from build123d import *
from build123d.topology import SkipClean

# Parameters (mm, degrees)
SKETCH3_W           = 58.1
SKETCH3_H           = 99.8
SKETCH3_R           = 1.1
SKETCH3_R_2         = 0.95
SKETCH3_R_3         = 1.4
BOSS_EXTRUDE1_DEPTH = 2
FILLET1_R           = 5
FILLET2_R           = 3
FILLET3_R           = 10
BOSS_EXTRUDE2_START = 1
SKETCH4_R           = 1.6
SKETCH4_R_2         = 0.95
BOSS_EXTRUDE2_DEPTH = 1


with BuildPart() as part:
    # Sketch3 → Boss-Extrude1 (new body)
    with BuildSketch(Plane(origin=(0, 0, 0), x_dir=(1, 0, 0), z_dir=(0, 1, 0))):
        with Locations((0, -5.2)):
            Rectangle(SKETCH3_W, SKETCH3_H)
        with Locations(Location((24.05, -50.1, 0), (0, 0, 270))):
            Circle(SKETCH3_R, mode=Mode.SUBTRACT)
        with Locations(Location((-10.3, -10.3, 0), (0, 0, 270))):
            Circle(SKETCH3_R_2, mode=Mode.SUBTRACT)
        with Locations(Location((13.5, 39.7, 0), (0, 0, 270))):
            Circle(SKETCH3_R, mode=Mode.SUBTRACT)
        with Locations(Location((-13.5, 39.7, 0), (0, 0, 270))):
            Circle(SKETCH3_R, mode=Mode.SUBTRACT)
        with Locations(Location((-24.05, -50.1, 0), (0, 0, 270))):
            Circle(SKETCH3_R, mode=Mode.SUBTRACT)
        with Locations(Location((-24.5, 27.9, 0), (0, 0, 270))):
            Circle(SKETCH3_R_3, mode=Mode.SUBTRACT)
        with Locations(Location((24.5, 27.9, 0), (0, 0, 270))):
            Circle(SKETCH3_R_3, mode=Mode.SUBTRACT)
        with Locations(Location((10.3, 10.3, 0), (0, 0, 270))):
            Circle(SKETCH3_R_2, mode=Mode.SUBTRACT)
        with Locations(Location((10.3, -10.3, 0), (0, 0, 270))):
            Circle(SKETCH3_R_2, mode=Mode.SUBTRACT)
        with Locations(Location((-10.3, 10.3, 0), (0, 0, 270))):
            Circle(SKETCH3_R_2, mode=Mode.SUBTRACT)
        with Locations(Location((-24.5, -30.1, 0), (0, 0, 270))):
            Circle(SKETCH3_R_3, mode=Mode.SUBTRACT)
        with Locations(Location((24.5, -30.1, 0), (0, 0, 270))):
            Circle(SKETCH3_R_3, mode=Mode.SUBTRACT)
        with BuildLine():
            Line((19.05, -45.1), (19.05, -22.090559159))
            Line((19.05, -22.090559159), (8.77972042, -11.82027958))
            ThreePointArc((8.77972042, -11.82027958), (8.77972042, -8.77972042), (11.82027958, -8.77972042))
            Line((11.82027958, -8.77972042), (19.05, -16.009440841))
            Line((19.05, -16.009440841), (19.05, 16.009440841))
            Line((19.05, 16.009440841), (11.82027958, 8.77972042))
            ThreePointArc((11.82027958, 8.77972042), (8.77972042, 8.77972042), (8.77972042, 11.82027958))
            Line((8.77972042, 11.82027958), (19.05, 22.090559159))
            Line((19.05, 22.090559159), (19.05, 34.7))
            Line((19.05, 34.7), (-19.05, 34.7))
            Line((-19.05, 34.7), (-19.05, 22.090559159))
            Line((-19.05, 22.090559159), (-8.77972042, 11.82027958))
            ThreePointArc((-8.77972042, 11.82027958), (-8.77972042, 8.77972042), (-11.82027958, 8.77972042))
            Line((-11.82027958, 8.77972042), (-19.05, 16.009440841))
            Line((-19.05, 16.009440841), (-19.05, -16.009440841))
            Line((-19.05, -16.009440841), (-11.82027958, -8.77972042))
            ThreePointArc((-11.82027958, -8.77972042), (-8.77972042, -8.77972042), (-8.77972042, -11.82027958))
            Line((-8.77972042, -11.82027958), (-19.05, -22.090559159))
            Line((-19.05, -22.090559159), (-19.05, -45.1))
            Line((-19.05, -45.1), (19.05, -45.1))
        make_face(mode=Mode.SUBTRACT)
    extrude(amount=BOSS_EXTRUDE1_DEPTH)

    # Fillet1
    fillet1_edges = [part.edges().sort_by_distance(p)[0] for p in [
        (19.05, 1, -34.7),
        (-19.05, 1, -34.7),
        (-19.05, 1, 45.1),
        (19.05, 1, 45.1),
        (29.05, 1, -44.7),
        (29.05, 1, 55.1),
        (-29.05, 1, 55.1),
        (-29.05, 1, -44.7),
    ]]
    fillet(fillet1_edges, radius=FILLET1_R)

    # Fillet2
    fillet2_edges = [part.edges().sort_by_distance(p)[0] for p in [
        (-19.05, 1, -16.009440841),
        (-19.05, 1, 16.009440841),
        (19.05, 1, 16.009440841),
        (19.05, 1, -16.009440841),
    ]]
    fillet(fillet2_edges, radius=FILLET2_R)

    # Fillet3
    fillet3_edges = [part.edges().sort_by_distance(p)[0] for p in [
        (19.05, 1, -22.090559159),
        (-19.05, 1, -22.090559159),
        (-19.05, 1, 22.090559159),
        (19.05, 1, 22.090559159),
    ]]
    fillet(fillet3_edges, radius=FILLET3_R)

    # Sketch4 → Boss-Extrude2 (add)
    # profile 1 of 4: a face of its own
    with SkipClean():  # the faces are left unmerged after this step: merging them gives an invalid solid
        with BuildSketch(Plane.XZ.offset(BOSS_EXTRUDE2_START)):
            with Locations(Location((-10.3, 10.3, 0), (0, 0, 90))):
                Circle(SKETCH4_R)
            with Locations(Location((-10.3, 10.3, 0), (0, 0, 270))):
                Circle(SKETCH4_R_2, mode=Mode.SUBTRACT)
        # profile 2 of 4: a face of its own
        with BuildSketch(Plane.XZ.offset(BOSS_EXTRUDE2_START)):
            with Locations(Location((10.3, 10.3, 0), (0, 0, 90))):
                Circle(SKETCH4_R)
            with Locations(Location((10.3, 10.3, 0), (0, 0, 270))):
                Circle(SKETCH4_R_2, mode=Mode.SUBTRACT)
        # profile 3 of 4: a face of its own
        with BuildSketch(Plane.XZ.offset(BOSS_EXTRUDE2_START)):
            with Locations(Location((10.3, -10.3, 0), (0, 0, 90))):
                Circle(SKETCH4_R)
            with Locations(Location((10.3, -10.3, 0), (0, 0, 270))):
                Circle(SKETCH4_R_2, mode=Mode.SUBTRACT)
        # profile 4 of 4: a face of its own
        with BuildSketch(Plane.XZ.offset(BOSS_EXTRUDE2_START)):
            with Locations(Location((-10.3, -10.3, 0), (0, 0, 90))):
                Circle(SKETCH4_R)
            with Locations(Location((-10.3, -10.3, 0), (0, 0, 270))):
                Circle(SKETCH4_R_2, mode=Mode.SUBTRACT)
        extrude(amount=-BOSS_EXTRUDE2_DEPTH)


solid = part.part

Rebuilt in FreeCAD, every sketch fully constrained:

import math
import FreeCAD as App
import Part
import Sketcher
Q = App.Units.Quantity


def edges_at(feature, points):
    """Names of the edges that pass closest to the given points."""
    edges = feature.Shape.Edges
    near = lambda p: min(range(len(edges)), key=lambda i: edges[i].distToShape(Part.Vertex(*p))[0])
    return sorted({f"Edge{near(p) + 1}" for p in points})


def add_polygon(sketch, points):
    """Adds a closed chain of lines whose ends are joined by coincident constraints."""
    first, n = sketch.GeometryCount, len(points)
    for a, b in zip(points, points[1:] + points[:1]):
        sketch.addGeometry(Part.LineSegment(App.Vector(*a, 0), App.Vector(*b, 0)), False)
    for i in range(n):
        sketch.addConstraint(Sketcher.Constraint("Coincident", first + i, 2, first + (i + 1) % n, 1))

doc = App.newDocument("Part")
body = doc.addObject("PartDesign::Body", "Body")

# Sketch on XZ plane
sketch1 = body.newObject("Sketcher::SketchObject", "Sketch")
sketch1.AttachmentSupport = (doc.getObject("XZ_Plane"), [""])
sketch1.MapMode = "FlatFace"
add_polygon(sketch1, [(-29.1, -44.7), (-29.1, 55.1), (29.1, 55.1), (29.1, -44.7)])  # lines 0-3
sketch1.addGeometry(Part.Circle(App.Vector(-24.1, 50.1, 0), App.Vector(0, 0, 1), 1.1), False)  # 4
sketch1.addGeometry(Part.Circle(App.Vector(-24.5, 30.1, 0), App.Vector(0, 0, 1), 1.4), False)  # 5
sketch1.addGeometry(Part.Circle(App.Vector(-10.3, 10.3, 0), App.Vector(0, 0, 1), 0.9), False)  # 6
sketch1.addGeometry(Part.Circle(App.Vector(24.1, 50.1, 0), App.Vector(0, 0, 1), 1.1), False)  # 7
sketch1.addGeometry(Part.Circle(App.Vector(24.5, 30.1, 0), App.Vector(0, 0, 1), 1.4), False)  # 8
sketch1.addGeometry(Part.Circle(App.Vector(10.3, 10.3, 0), App.Vector(0, 0, 1), 0.9), False)  # 9
sketch1.addGeometry(Part.LineSegment(App.Vector(19.1, 22.1, 0), App.Vector(19.1, 45.1, 0)), False)  # 10
sketch1.addGeometry(Part.LineSegment(App.Vector(19.1, 45.1, 0), App.Vector(-19.1, 45.1, 0)), False)  # 11
sketch1.addGeometry(Part.LineSegment(App.Vector(-19.1, 45.1, 0), App.Vector(-19.1, 22.1, 0)), False)  # 12
sketch1.addGeometry(Part.LineSegment(App.Vector(-19.1, 22.1, 0), App.Vector(-8.8, 11.8, 0)), False)  # 13
sketch1.addGeometry(Part.ArcOfCircle(Part.Circle(App.Vector(-10.3, 10.3, 0), App.Vector(0, 0, 1), 2.2), math.radians(-135), math.radians(45)), False)  # 14
sketch1.addGeometry(Part.LineSegment(App.Vector(-11.8, 8.8, 0), App.Vector(-19.1, 16, 0)), False)  # 15
sketch1.addGeometry(Part.LineSegment(App.Vector(-19.1, 16, 0), App.Vector(-19.1, -16, 0)), False)  # 16
sketch1.addGeometry(Part.LineSegment(App.Vector(-19.1, -16, 0), App.Vector(-11.8, -8.8, 0)), False)  # 17
sketch1.addGeometry(Part.ArcOfCircle(Part.Circle(App.Vector(-10.3, -10.3, 0), App.Vector(0, 0, 1), 2.2), math.radians(-45), math.radians(135)), False)  # 18
sketch1.addGeometry(Part.LineSegment(App.Vector(-8.8, -11.8, 0), App.Vector(-19.1, -22.1, 0)), False)  # 19
sketch1.addGeometry(Part.LineSegment(App.Vector(-19.1, -22.1, 0), App.Vector(-19.1, -34.7, 0)), False)  # 20
sketch1.addGeometry(Part.LineSegment(App.Vector(-19.1, -34.7, 0), App.Vector(19.1, -34.7, 0)), False)  # 21
sketch1.addGeometry(Part.LineSegment(App.Vector(19.1, -34.7, 0), App.Vector(19.1, -22.1, 0)), False)  # 22
sketch1.addGeometry(Part.LineSegment(App.Vector(19.1, -22.1, 0), App.Vector(8.8, -11.8, 0)), False)  # 23
sketch1.addGeometry(Part.ArcOfCircle(Part.Circle(App.Vector(10.3, -10.3, 0), App.Vector(0, 0, 1), 2.2), math.radians(45), math.radians(225)), False)  # 24
sketch1.addGeometry(Part.LineSegment(App.Vector(11.8, -8.8, 0), App.Vector(19.1, -16, 0)), False)  # 25
sketch1.addGeometry(Part.LineSegment(App.Vector(19.1, -16, 0), App.Vector(19.1, 16, 0)), False)  # 26
sketch1.addGeometry(Part.LineSegment(App.Vector(19.1, 16, 0), App.Vector(11.8, 8.8, 0)), False)  # 27
sketch1.addGeometry(Part.ArcOfCircle(Part.Circle(App.Vector(10.3, 10.3, 0), App.Vector(0, 0, 1), 2.2), math.radians(135), math.radians(315)), False)  # 28
sketch1.addGeometry(Part.LineSegment(App.Vector(8.8, 11.8, 0), App.Vector(19.1, 22.1, 0)), False)  # 29
sketch1.addGeometry(Part.Circle(App.Vector(-10.3, -10.3, 0), App.Vector(0, 0, 1), 0.9), False)  # 30
sketch1.addGeometry(Part.Circle(App.Vector(-24.5, -27.9, 0), App.Vector(0, 0, 1), 1.4), False)  # 31
sketch1.addGeometry(Part.Circle(App.Vector(-13.5, -39.7, 0), App.Vector(0, 0, 1), 1.1), False)  # 32
sketch1.addGeometry(Part.Circle(App.Vector(10.3, -10.3, 0), App.Vector(0, 0, 1), 0.9), False)  # 33
sketch1.addGeometry(Part.Circle(App.Vector(24.5, -27.9, 0), App.Vector(0, 0, 1), 1.4), False)  # 34
sketch1.addGeometry(Part.Circle(App.Vector(13.5, -39.7, 0), App.Vector(0, 0, 1), 1.1), False)  # 35
sketch1.addConstraint([
    Sketcher.Constraint("Coincident", 10, 2, 11, 1),
    Sketcher.Constraint("Coincident", 11, 2, 12, 1),
    Sketcher.Constraint("Coincident", 12, 2, 13, 1),
    Sketcher.Constraint("Tangent", 13, 2, 14, 2),
    Sketcher.Constraint("Tangent", 14, 1, 15, 1),
    Sketcher.Constraint("Coincident", 15, 2, 16, 1),
    Sketcher.Constraint("Coincident", 16, 2, 17, 1),
    Sketcher.Constraint("Tangent", 17, 2, 18, 2),
    Sketcher.Constraint("Tangent", 18, 1, 19, 1),
    Sketcher.Constraint("Coincident", 19, 2, 20, 1),
    Sketcher.Constraint("Coincident", 20, 2, 21, 1),
    Sketcher.Constraint("Coincident", 21, 2, 22, 1),
    Sketcher.Constraint("Coincident", 22, 2, 23, 1),
    Sketcher.Constraint("Tangent", 23, 2, 24, 2),
    Sketcher.Constraint("Tangent", 24, 1, 25, 1),
    Sketcher.Constraint("Coincident", 25, 2, 26, 1),
    Sketcher.Constraint("Coincident", 26, 2, 27, 1),
    Sketcher.Constraint("Tangent", 27, 2, 28, 2),
    Sketcher.Constraint("Tangent", 28, 1, 29, 1),
    Sketcher.Constraint("Coincident", 29, 2, 10, 1),
    Sketcher.Constraint("Vertical", 0),
    Sketcher.Constraint("Horizontal", 1),
    Sketcher.Constraint("Vertical", 2),
    Sketcher.Constraint("Horizontal", 3),
    Sketcher.Constraint("Vertical", 10),
    Sketcher.Constraint("Horizontal", 11),
    Sketcher.Constraint("Vertical", 12),
    Sketcher.Constraint("Vertical", 16),
    Sketcher.Constraint("Vertical", 20),
    Sketcher.Constraint("Horizontal", 21),
    Sketcher.Constraint("Vertical", 22),
    Sketcher.Constraint("Vertical", 26),
    Sketcher.Constraint("Coincident", 14, 3, 6, 3),
    Sketcher.Constraint("Coincident", 28, 3, 9, 3),
    Sketcher.Constraint("Coincident", 30, 3, 18, 3),
    Sketcher.Constraint("Coincident", 33, 3, 24, 3),
    Sketcher.Constraint("Equal", 4, 7),
    Sketcher.Constraint("Equal", 5, 8),
    Sketcher.Constraint("Equal", 6, 9),
    Sketcher.Constraint("Equal", 14, 18),
    Sketcher.Constraint("Equal", 18, 24),
    Sketcher.Constraint("Equal", 24, 28),
    Sketcher.Constraint("Equal", 9, 30),
    Sketcher.Constraint("Equal", 8, 31),
    Sketcher.Constraint("Equal", 7, 32),
    Sketcher.Constraint("Equal", 30, 33),
    Sketcher.Constraint("Equal", 31, 34),
    Sketcher.Constraint("Equal", 32, 35),
    Sketcher.Constraint("Symmetric", 9, 3, 18, 3, -1, 1),
    Sketcher.Constraint("Symmetric", 6, 3, 24, 3, -1, 1),
    Sketcher.Constraint("Symmetric", 12, 2, 22, 2, -1, 1),
    Sketcher.Constraint("Symmetric", 15, 2, 25, 2, -1, 1),
    Sketcher.Constraint("Symmetric", 19, 2, 29, 2, -1, 1),
    Sketcher.Constraint("Symmetric", 4, 3, 7, 3, -2),
    Sketcher.Constraint("Symmetric", 5, 3, 8, 3, -2),
    Sketcher.Constraint("Symmetric", 6, 3, 9, 3, -2),
    Sketcher.Constraint("Symmetric", 31, 3, 34, 3, -2),
    Sketcher.Constraint("Symmetric", 32, 3, 35, 3, -2),
    Sketcher.Constraint("Symmetric", 19, 2, 22, 2, -2),
    Sketcher.Constraint("Parallel", 13, 15),
    Sketcher.Constraint("Perpendicular", 15, 17),
    Sketcher.Constraint("Parallel", 17, 19),
    Sketcher.Constraint("Perpendicular", 25, 27),
    Sketcher.Constraint("Vertical", 5, 3, 31, 3),
    Sketcher.Constraint("Vertical", 12, 2, 15, 2),
    Sketcher.Constraint("Diameter", 4, Q("2.2 mm")),
    Sketcher.Constraint("Diameter", 5, Q("2.8 mm")),
    Sketcher.Constraint("Diameter", 6, Q("1.9 mm")),
    Sketcher.Constraint("Radius", 14, Q("2.15 mm")),
    Sketcher.Constraint("DistanceX", 1, 1, 1, 2, Q("58.1 mm")),
    Sketcher.Constraint("DistanceX", 11, 2, 11, 1, Q("38.1 mm")),
    Sketcher.Constraint("DistanceY", 0, 1, 0, 2, Q("99.8 mm")),
    Sketcher.Constraint("DistanceY", 5, 3, 4, 3, Q("20 mm")),
    Sketcher.Constraint("DistanceX", 5, 3, 8, 3, Q("49 mm")),
    Sketcher.Constraint("DistanceX", 31, 3, 32, 3, Q("11 mm")),
    Sketcher.Constraint("DistanceY", 32, 3, 6, 3, Q("50 mm")),
    Sketcher.Constraint("DistanceX", 0, 2, 4, 3, Q("5 mm")),
    Sketcher.Constraint("DistanceY", 4, 3, 0, 2, Q("5 mm")),
    Sketcher.Constraint("DistanceX", 7, 3, 1, 2, Q("5 mm")),
    Sketcher.Constraint("DistanceY", 2, 2, 35, 3, Q("5 mm")),
    Sketcher.Constraint("DistanceY", 10, 2, 7, 3, Q("5 mm")),
    Sketcher.Constraint("DistanceY", 32, 3, 20, 2, Q("5 mm")),
    Sketcher.Constraint("DistanceY", -1, 1, 4, 3, Q("50.1 mm")),
    Sketcher.Constraint("DistanceX", 6, 3, -1, 1, Q("10.3 mm")),
    Sketcher.Constraint("DistanceY", 31, 3, -1, 1, Q("27.9 mm")),
])
pad1 = body.newObject("PartDesign::Pad", "Pad")
pad1.Profile = sketch1
pad1.Length = 2
pad1.Reversed = True
doc.recompute()

fillet = body.newObject("PartDesign::Fillet", "Fillet")
fillet.Base = (pad1, edges_at(pad1, [
    (19.05, 1, -34.7),
    (-19.05, 1, -34.7),
    (-19.05, 1, 45.1),
    (19.05, 1, 45.1),
    (29.05, 1, -44.7),
    (29.05, 1, 55.1),
    (-29.05, 1, 55.1),
    (-29.05, 1, -44.7),
]))
fillet.Radius = 5
doc.recompute()

fillet2 = body.newObject("PartDesign::Fillet", "Fillet001")
fillet2.Base = (fillet, edges_at(fillet, [
    (-19.05, 1, -16.009),
    (-19.05, 1, 16.009),
    (19.05, 1, 16.009),
    (19.05, 1, -16.009),
]))
fillet2.Radius = 3
doc.recompute()

fillet3 = body.newObject("PartDesign::Fillet", "Fillet002")
fillet3.Base = (fillet2, edges_at(fillet2, [
    (19.05, 1, -22.091),
    (-19.05, 1, -22.091),
    (-19.05, 1, 22.091),
    (19.05, 1, 22.091),
]))
fillet3.Radius = 10

# Sketch on XZ plane
sketch2 = body.newObject("Sketcher::SketchObject", "Sketch001")
sketch2.AttachmentSupport = (doc.getObject("XZ_Plane"), [""])
sketch2.MapMode = "FlatFace"
sketch2.AttachmentOffset = App.Placement(App.Vector(0, 0, 1), App.Rotation())
sketch2.addGeometry([
    Part.Circle(App.Vector(-10.3, 10.3, 0), App.Vector(0, 0, 1), 1.6),  # 0
    Part.Circle(App.Vector(-10.3, 10.3, 0), App.Vector(0, 0, 1), 0.9),  # 1
    Part.Circle(App.Vector(10.3, 10.3, 0), App.Vector(0, 0, 1), 1.6),  # 2
    Part.Circle(App.Vector(10.3, 10.3, 0), App.Vector(0, 0, 1), 0.9),  # 3
    Part.Circle(App.Vector(10.3, -10.3, 0), App.Vector(0, 0, 1), 1.6),  # 4
    Part.Circle(App.Vector(10.3, -10.3, 0), App.Vector(0, 0, 1), 0.9),  # 5
    Part.Circle(App.Vector(-10.3, -10.3, 0), App.Vector(0, 0, 1), 1.6),  # 6
    Part.Circle(App.Vector(-10.3, -10.3, 0), App.Vector(0, 0, 1), 0.9),  # 7
], False)
sketch2.addConstraint([
    Sketcher.Constraint("Coincident", 1, 3, 0, 3),
    Sketcher.Constraint("Coincident", 3, 3, 2, 3),
    Sketcher.Constraint("Coincident", 5, 3, 4, 3),
    Sketcher.Constraint("Coincident", 7, 3, 6, 3),
    Sketcher.Constraint("Equal", 0, 2),
    Sketcher.Constraint("Equal", 1, 3),
    Sketcher.Constraint("Equal", 2, 4),
    Sketcher.Constraint("Equal", 3, 5),
    Sketcher.Constraint("Equal", 4, 6),
    Sketcher.Constraint("Equal", 5, 7),
    Sketcher.Constraint("Symmetric", 0, 3, 4, 3, -1, 1),
    Sketcher.Constraint("Symmetric", 2, 3, 6, 3, -1, 1),
    Sketcher.Constraint("Symmetric", 0, 3, 2, 3, -2),
    Sketcher.Constraint("Diameter", 0, Q("3.2 mm")),
    Sketcher.Constraint("Diameter", 1, Q("1.9 mm")),
    Sketcher.Constraint("DistanceX", 0, 3, -1, 1, Q("10.3 mm")),
    Sketcher.Constraint("DistanceY", -1, 1, 0, 3, Q("10.3 mm")),
])
pad2 = body.newObject("PartDesign::Pad", "Pad001")
pad2.Profile = sketch2
pad2.Length = 1
pad2.Reversed = True

doc.recompute()
